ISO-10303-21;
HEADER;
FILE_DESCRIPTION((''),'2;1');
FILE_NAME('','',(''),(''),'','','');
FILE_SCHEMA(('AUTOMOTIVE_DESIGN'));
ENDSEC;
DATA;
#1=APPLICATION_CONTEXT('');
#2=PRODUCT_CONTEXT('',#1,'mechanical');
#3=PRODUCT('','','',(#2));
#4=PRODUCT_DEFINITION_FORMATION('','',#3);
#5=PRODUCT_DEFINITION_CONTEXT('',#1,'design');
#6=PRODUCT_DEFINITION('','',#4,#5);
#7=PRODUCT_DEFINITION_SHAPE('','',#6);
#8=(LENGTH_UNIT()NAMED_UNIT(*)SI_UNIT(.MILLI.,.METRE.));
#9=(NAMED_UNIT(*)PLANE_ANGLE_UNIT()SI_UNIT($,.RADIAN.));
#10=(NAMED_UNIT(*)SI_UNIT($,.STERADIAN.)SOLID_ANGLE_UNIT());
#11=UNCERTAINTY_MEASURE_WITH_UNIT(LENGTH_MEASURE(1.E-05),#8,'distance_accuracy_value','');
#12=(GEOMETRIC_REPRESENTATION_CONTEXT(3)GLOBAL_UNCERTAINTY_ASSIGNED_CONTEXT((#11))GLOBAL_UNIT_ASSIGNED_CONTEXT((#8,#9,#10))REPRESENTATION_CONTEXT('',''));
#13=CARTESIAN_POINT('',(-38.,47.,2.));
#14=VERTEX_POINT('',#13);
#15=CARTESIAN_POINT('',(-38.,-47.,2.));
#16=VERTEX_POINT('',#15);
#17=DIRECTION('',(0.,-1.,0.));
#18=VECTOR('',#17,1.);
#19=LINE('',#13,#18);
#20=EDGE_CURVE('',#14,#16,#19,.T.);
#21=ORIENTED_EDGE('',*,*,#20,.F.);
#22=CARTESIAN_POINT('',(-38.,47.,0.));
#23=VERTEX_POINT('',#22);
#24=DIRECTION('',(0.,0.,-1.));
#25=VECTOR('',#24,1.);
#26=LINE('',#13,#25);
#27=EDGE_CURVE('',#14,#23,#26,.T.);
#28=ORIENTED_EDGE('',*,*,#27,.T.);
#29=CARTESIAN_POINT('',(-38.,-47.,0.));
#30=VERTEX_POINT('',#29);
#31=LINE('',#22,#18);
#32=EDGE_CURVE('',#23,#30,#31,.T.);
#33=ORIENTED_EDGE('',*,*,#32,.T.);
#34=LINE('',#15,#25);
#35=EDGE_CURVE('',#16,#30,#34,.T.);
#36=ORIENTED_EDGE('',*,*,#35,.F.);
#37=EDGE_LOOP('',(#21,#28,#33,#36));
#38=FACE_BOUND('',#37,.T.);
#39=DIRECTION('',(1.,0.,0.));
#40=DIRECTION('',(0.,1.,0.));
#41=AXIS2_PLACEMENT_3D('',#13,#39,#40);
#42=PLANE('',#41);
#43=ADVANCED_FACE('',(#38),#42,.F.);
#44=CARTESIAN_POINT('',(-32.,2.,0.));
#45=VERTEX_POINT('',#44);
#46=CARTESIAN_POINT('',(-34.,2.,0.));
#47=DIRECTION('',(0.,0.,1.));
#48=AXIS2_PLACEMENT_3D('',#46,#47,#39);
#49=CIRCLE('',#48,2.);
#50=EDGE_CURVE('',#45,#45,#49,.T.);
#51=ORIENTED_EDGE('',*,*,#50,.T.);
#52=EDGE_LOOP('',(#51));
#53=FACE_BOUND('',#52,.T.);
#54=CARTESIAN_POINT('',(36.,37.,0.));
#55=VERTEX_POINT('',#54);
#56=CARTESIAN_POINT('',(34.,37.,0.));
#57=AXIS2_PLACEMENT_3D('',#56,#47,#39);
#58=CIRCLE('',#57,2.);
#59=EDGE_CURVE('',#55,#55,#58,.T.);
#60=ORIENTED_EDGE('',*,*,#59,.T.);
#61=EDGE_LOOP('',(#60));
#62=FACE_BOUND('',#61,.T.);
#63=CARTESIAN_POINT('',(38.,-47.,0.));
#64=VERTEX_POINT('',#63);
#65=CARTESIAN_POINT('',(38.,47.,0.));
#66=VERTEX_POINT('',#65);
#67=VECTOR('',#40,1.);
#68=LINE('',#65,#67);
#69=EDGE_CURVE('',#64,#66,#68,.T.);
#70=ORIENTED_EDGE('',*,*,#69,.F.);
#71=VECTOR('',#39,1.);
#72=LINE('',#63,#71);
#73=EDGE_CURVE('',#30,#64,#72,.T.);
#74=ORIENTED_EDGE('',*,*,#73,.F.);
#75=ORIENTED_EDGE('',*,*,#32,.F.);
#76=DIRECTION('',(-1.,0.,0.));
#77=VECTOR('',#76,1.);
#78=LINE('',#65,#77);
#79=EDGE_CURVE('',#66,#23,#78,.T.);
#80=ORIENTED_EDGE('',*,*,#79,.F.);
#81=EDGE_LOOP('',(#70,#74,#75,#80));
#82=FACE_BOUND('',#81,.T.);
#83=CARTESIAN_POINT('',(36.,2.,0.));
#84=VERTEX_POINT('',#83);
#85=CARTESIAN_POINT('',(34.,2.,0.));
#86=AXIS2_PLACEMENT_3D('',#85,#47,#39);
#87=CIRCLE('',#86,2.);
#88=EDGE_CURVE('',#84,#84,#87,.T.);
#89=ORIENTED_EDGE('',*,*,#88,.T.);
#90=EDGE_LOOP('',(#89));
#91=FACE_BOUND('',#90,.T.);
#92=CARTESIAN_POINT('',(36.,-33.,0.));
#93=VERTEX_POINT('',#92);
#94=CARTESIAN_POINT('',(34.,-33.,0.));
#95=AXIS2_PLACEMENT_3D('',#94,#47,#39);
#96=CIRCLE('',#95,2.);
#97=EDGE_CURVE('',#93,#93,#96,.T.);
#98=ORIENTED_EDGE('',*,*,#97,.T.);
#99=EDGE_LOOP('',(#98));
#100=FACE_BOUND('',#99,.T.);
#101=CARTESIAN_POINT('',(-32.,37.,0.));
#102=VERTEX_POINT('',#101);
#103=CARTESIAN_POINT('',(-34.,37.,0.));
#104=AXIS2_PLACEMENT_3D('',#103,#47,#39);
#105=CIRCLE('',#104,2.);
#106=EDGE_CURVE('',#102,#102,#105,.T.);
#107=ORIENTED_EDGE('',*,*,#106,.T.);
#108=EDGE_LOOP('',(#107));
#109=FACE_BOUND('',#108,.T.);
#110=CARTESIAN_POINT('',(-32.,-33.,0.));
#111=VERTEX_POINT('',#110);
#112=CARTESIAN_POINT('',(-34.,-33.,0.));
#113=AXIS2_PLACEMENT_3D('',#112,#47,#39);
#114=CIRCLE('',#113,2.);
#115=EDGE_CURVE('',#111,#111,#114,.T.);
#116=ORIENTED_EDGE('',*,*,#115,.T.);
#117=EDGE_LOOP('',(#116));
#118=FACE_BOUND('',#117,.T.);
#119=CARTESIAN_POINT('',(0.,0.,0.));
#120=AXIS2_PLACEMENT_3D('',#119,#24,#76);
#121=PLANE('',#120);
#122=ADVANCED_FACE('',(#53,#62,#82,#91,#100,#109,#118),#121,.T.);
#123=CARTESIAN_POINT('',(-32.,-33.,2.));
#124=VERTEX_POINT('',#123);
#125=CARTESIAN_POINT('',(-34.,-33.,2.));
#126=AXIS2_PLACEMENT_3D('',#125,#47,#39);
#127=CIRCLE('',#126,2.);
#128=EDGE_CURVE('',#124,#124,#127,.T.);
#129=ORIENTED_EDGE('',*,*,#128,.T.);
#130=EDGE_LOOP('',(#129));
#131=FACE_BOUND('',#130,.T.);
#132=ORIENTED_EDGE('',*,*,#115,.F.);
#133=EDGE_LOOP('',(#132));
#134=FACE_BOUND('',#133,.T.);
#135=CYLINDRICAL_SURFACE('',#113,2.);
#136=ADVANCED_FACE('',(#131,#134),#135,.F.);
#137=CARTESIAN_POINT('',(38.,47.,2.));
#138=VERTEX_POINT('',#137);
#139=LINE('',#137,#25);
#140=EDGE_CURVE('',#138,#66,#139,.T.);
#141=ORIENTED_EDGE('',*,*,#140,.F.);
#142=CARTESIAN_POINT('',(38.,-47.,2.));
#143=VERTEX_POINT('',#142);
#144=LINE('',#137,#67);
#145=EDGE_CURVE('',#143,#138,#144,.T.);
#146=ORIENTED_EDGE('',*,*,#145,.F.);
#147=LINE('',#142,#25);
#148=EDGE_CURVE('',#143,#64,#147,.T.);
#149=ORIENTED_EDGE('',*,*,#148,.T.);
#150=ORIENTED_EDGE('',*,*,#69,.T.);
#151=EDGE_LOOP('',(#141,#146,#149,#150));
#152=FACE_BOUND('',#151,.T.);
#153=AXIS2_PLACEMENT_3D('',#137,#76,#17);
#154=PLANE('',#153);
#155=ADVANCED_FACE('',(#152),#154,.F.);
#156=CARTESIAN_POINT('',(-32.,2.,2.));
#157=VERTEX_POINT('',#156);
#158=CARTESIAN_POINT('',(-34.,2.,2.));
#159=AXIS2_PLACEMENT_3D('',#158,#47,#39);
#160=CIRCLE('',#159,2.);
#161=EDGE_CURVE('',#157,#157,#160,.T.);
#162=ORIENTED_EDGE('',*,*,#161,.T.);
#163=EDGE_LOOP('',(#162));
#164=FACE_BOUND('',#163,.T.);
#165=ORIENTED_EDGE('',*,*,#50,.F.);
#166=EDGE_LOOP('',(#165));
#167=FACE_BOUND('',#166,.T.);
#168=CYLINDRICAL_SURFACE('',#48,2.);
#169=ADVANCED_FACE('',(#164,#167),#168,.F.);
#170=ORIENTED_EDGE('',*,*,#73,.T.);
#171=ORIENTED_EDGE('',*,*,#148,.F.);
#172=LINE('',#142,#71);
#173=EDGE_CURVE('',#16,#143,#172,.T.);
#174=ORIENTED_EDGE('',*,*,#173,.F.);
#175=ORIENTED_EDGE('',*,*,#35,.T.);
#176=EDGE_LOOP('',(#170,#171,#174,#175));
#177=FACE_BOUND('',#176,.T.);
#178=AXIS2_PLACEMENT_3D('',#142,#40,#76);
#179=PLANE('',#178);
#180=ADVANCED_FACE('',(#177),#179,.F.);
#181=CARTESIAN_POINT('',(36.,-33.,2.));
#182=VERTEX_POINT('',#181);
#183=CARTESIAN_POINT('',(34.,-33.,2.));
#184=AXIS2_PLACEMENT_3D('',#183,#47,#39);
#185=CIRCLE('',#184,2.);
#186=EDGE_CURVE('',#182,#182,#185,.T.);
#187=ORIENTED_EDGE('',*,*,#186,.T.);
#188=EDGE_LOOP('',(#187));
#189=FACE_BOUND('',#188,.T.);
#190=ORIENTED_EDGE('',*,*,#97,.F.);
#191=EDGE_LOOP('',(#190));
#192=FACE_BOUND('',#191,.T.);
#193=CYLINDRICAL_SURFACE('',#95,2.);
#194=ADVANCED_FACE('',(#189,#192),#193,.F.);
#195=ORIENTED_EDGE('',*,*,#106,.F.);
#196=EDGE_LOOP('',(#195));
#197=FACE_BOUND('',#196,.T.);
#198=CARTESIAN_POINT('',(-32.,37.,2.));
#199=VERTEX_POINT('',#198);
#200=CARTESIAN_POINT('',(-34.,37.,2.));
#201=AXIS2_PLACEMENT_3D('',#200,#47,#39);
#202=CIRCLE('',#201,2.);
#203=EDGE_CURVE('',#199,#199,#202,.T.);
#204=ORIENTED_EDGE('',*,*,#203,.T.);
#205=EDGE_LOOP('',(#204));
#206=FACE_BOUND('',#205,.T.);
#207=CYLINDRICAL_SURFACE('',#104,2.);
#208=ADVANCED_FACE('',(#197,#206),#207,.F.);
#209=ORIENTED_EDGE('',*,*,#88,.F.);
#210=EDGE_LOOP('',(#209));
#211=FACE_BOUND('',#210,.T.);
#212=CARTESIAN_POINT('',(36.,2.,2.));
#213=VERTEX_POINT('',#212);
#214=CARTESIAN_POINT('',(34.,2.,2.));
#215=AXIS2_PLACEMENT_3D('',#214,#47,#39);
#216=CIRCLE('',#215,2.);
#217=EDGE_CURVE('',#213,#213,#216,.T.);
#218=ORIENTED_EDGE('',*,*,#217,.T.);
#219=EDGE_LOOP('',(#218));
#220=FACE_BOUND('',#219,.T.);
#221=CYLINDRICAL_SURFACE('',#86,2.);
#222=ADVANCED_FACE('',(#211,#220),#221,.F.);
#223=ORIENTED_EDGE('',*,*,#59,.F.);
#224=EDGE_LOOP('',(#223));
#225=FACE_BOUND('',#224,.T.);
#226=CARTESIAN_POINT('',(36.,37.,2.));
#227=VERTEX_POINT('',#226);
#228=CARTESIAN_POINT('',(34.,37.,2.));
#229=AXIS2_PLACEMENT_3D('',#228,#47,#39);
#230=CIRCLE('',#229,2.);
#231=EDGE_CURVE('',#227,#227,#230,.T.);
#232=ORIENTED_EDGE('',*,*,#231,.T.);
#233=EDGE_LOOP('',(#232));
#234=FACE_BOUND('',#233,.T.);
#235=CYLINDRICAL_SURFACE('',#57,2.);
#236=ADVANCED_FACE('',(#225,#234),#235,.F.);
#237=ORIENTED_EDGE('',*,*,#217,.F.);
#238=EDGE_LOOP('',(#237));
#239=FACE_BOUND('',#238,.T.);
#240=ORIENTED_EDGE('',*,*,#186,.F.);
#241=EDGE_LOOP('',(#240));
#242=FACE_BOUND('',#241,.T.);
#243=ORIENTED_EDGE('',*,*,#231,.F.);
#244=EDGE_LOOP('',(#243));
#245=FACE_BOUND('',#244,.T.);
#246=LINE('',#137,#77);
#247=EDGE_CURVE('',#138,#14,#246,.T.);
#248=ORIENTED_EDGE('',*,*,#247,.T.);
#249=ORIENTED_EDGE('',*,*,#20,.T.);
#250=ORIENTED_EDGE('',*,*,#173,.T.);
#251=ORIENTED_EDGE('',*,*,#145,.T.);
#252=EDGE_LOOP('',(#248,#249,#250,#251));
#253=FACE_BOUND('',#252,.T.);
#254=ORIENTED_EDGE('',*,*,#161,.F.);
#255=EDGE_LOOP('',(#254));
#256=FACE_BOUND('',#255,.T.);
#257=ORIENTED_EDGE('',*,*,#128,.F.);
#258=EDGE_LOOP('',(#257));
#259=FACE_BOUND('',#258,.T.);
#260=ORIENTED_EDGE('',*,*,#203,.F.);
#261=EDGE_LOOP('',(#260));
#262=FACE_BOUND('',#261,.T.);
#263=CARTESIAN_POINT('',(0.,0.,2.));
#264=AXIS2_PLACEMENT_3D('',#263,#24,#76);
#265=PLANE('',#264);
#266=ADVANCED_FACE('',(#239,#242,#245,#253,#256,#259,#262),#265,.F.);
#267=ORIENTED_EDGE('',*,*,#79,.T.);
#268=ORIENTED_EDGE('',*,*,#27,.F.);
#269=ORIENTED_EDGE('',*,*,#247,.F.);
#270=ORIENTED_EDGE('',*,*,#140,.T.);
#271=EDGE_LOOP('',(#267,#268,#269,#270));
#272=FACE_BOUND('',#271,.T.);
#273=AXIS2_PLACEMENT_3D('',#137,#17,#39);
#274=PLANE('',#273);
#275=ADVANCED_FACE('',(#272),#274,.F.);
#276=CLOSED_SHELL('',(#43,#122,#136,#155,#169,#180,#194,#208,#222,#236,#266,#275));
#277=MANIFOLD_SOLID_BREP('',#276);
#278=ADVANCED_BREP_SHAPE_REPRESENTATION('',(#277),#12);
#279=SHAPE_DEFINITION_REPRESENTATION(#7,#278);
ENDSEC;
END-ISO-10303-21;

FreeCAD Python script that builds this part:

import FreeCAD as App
import Part
import Sketcher

V = App.Vector
Q = App.Units.Quantity


def add_polygon(sketch, points):
    """Adds a closed chain of lines whose ends are joined by coincident constraints."""
    first, n = sketch.GeometryCount, len(points)
    for a, b in zip(points, points[1:] + points[:1]):
        sketch.addGeometry(Part.LineSegment(App.Vector(*a, 0), App.Vector(*b, 0)), False)
    for i in range(n):
        sketch.addConstraint(Sketcher.Constraint("Coincident", first + i, 2, first + (i + 1) % n, 1))

doc = App.newDocument("Part")
params = doc.addObject("Spreadsheet::Sheet", "Params")
for row, (alias, value) in enumerate([
    ("sketch1_width", "76 mm"),
    ("sketch1_height", "94 mm"),
    ("pad1_length", "2 mm"),
    ("sketch2_diameter", "4 mm"),
    ("pocket1_length", "2 mm"),
], start=1):
    params.set(f"A{row}", alias)
    params.set(f"B{row}", "=" + value)
    params.setAlias(f"B{row}", alias)

body = doc.addObject("PartDesign::Body", "Body")

# Sketch on XY plane
sketch1 = body.newObject("Sketcher::SketchObject", "Sketch")
sketch1.AttachmentSupport = (doc.getObject("XY_Plane"), [""])
sketch1.MapMode = "FlatFace"
add_polygon(sketch1, [(-38, 47), (-38, -47), (38, -47), (38, 47)])  # lines 0-3
sketch1.addConstraint(Sketcher.Constraint("Vertical", 0))
sketch1.addConstraint(Sketcher.Constraint("Horizontal", 1))
sketch1.addConstraint(Sketcher.Constraint("Vertical", 2))
sketch1.addConstraint(Sketcher.Constraint("Horizontal", 3))
sketch1.addConstraint(Sketcher.Constraint("Symmetric", 0, 2, 2, 2, -1, 1))
sketch1.addConstraint(Sketcher.Constraint("DistanceX", 1, 1, 1, 2, Q("76 mm")))
sketch1.addConstraint(Sketcher.Constraint("DistanceY", 0, 2, 0, 1, Q("94 mm")))
sketch1.setExpression("Constraints[9]", "Params.sketch1_width")
sketch1.setExpression("Constraints[10]", "Params.sketch1_height")
pad1 = body.newObject("PartDesign::Pad", "Pad")
pad1.Profile = sketch1
pad1.setExpression("Length", "Params.pad1_length")

# Sketch on XY plane
sketch2 = body.newObject("Sketcher::SketchObject", "Sketch001")
sketch2.AttachmentSupport = (doc.getObject("XY_Plane"), [""])
sketch2.MapMode = "FlatFace"
sketch2.AttachmentOffset = App.Placement(V(0, 0, 2), App.Rotation())
sketch2.addGeometry(Part.Circle(V(34, 37, 0), V(0, 0, 1), 2), False)
sketch2.addGeometry(Part.Circle(V(34, 2, 0), V(0, 0, 1), 2), False)
sketch2.addGeometry(Part.Circle(V(34, -33, 0), V(0, 0, 1), 2), False)
sketch2.addGeometry(Part.Circle(V(-34, -33, 0), V(0, 0, 1), 2), False)
sketch2.addGeometry(Part.Circle(V(-34, 2, 0), V(0, 0, 1), 2), False)
sketch2.addGeometry(Part.Circle(V(-34, 37, 0), V(0, 0, 1), 2), False)
sketch2.addConstraint(Sketcher.Constraint("Equal", 0, 1))
sketch2.addConstraint(Sketcher.Constraint("Equal", 1, 2))
sketch2.addConstraint(Sketcher.Constraint("Equal", 2, 3))
sketch2.addConstraint(Sketcher.Constraint("Equal", 3, 4))
sketch2.addConstraint(Sketcher.Constraint("Equal", 4, 5))
sketch2.addConstraint(Sketcher.Constraint("Symmetric", 2, 3, 3, 3, -2))
sketch2.addConstraint(Sketcher.Constraint("Symmetric", 1, 3, 4, 3, -2))
sketch2.addConstraint(Sketcher.Constraint("Symmetric", 0, 3, 5, 3, -2))
sketch2.addConstraint(Sketcher.Constraint("Vertical", 0, 3, 1, 3))
sketch2.addConstraint(Sketcher.Constraint("Vertical", 1, 3, 2, 3))
sketch2.addConstraint(Sketcher.Constraint("Diameter", 0, Q("4 mm")))
sketch2.addConstraint(Sketcher.Constraint("DistanceX", -1, 1, 0, 3, Q("34 mm")))
sketch2.addConstraint(Sketcher.Constraint("DistanceY", -1, 1, 0, 3, Q("37 mm")))
sketch2.addConstraint(Sketcher.Constraint("DistanceY", -1, 1, 1, 3, Q("2 mm")))
sketch2.addConstraint(Sketcher.Constraint("DistanceY", 2, 3, -1, 1, Q("33 mm")))
sketch2.setExpression("Constraints[10]", "Params.sketch2_diameter")
pocket1 = body.newObject("PartDesign::Pocket", "Pocket")
pocket1.Profile = sketch2
pocket1.setExpression("Length", "Params.pocket1_length")

doc.recompute()
